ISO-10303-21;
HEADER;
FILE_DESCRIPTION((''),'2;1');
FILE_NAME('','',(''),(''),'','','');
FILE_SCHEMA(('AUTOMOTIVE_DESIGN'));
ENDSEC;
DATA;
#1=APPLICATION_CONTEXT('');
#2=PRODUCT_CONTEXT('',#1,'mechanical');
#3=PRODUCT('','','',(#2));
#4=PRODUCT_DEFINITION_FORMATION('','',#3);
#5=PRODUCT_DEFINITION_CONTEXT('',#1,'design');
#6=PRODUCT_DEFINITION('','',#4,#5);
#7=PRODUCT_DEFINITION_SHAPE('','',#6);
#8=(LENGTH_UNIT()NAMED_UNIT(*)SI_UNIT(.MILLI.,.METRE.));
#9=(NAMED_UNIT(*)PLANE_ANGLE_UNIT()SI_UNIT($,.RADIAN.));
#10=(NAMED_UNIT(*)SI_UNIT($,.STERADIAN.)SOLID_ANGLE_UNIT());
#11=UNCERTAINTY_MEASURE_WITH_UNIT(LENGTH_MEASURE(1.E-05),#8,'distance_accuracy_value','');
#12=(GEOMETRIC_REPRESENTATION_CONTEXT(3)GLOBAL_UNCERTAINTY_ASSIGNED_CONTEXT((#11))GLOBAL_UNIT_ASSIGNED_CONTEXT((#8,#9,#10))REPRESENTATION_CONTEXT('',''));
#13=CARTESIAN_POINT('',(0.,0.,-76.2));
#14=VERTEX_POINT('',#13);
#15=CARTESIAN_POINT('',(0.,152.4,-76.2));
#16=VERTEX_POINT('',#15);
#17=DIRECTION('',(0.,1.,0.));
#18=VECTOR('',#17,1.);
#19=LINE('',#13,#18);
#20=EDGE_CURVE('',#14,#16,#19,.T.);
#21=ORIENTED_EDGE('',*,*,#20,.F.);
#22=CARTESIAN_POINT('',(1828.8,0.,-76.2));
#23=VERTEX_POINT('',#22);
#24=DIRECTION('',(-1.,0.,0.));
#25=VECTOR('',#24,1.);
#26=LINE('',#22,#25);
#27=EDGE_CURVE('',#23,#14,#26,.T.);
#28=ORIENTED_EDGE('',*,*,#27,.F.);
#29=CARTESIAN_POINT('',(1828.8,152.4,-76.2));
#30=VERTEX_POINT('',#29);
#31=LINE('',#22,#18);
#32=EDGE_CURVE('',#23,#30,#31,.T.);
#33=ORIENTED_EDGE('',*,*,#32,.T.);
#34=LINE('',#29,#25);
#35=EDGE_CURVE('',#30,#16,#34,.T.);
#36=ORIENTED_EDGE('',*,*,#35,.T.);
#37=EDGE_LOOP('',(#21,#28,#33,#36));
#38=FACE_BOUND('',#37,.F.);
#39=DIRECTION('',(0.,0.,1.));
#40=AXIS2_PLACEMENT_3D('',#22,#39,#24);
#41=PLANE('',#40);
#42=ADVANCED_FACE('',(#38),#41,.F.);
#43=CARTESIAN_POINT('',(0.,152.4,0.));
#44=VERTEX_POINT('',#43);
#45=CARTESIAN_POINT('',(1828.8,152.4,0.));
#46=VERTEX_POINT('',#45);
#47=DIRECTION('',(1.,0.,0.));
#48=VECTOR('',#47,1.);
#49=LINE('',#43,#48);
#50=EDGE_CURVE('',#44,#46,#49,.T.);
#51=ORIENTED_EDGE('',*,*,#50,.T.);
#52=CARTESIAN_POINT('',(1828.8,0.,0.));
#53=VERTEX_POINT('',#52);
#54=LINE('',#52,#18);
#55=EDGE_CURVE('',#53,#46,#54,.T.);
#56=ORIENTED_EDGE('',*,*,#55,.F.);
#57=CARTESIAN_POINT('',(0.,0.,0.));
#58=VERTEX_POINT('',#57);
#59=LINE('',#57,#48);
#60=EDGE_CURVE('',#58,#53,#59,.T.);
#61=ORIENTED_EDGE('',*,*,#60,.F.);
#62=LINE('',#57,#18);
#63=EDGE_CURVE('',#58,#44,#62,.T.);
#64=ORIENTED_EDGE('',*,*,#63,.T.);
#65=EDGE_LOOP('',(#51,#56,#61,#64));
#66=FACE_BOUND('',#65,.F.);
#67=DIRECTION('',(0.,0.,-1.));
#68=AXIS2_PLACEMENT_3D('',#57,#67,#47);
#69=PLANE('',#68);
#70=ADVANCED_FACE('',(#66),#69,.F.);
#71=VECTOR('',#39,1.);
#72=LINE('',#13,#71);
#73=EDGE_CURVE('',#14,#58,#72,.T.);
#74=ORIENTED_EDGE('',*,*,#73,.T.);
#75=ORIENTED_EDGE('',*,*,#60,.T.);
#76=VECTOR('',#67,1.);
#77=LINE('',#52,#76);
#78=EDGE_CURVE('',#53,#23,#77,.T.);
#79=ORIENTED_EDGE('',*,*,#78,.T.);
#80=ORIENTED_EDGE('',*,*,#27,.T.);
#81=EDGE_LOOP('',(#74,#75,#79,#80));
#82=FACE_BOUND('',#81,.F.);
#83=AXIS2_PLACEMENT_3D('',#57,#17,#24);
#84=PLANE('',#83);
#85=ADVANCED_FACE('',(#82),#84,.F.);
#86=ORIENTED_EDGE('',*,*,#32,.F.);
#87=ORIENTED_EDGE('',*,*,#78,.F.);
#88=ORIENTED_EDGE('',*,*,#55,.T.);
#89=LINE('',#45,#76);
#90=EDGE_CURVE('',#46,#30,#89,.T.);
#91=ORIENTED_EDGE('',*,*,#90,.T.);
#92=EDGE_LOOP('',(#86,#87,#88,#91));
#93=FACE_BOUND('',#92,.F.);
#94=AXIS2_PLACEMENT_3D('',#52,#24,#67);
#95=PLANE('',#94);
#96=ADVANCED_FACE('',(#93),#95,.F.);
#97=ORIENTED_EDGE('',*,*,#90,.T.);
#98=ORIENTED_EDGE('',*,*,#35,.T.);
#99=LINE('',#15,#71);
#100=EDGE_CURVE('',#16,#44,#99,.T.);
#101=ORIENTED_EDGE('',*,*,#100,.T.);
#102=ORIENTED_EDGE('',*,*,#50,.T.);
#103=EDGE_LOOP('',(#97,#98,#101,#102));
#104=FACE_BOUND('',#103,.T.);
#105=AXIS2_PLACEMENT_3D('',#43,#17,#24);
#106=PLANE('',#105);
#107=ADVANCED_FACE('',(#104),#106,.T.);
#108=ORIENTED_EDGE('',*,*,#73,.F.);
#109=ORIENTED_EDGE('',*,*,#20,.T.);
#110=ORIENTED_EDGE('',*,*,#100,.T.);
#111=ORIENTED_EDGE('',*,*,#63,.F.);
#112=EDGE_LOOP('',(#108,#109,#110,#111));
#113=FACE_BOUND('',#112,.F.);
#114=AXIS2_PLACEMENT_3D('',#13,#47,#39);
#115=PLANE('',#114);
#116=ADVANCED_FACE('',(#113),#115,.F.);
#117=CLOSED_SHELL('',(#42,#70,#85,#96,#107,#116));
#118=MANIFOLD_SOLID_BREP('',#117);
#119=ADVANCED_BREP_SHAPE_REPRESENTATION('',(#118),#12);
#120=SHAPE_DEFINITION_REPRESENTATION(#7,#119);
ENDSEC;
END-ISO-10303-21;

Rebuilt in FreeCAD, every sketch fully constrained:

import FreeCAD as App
import Part
import Sketcher
from FreeCAD import Vector
Q = App.Units.Quantity


def add_polygon(sketch, points):
    """Adds a closed chain of lines whose ends are joined by coincident constraints."""
    first, n = sketch.GeometryCount, len(points)
    for a, b in zip(points, points[1:] + points[:1]):
        sketch.addGeometry(Part.LineSegment(App.Vector(*a, 0), App.Vector(*b, 0)), False)
    for i in range(n):
        sketch.addConstraint(Sketcher.Constraint("Coincident", first + i, 2, first + (i + 1) % n, 1))

doc = App.newDocument("Part")
body = doc.addObject("PartDesign::Body", "Body")

# Sketch on XZ plane
sketch1 = body.newObject("Sketcher::SketchObject", "Sketch")
sketch1.AttachmentSupport = (doc.getObject("XZ_Plane"), [""])
sketch1.MapMode = "FlatFace"
add_polygon(sketch1, [(0, -76.2), (0, 0), (1828.8, 0), (1828.8, -76.2)])  # lines 0-3
sketch1.addConstraint([
    Sketcher.Constraint("Vertical", 0),
    Sketcher.Constraint("Horizontal", 1),
    Sketcher.Constraint("Vertical", 2),
    Sketcher.Constraint("Horizontal", 3),
    Sketcher.Constraint("Coincident", 0, 2, -1, 1),
    Sketcher.Constraint("DistanceX", 1, 1, 1, 2, Q("72 in")),
    Sketcher.Constraint("DistanceY", 0, 1, 0, 2, Q("3 in")),
])
pad1 = body.newObject("PartDesign::Pad", "Pad")
pad1.Profile = sketch1
pad1.Length = Q("6 in")
pad1.Reversed = True

doc.recompute()
